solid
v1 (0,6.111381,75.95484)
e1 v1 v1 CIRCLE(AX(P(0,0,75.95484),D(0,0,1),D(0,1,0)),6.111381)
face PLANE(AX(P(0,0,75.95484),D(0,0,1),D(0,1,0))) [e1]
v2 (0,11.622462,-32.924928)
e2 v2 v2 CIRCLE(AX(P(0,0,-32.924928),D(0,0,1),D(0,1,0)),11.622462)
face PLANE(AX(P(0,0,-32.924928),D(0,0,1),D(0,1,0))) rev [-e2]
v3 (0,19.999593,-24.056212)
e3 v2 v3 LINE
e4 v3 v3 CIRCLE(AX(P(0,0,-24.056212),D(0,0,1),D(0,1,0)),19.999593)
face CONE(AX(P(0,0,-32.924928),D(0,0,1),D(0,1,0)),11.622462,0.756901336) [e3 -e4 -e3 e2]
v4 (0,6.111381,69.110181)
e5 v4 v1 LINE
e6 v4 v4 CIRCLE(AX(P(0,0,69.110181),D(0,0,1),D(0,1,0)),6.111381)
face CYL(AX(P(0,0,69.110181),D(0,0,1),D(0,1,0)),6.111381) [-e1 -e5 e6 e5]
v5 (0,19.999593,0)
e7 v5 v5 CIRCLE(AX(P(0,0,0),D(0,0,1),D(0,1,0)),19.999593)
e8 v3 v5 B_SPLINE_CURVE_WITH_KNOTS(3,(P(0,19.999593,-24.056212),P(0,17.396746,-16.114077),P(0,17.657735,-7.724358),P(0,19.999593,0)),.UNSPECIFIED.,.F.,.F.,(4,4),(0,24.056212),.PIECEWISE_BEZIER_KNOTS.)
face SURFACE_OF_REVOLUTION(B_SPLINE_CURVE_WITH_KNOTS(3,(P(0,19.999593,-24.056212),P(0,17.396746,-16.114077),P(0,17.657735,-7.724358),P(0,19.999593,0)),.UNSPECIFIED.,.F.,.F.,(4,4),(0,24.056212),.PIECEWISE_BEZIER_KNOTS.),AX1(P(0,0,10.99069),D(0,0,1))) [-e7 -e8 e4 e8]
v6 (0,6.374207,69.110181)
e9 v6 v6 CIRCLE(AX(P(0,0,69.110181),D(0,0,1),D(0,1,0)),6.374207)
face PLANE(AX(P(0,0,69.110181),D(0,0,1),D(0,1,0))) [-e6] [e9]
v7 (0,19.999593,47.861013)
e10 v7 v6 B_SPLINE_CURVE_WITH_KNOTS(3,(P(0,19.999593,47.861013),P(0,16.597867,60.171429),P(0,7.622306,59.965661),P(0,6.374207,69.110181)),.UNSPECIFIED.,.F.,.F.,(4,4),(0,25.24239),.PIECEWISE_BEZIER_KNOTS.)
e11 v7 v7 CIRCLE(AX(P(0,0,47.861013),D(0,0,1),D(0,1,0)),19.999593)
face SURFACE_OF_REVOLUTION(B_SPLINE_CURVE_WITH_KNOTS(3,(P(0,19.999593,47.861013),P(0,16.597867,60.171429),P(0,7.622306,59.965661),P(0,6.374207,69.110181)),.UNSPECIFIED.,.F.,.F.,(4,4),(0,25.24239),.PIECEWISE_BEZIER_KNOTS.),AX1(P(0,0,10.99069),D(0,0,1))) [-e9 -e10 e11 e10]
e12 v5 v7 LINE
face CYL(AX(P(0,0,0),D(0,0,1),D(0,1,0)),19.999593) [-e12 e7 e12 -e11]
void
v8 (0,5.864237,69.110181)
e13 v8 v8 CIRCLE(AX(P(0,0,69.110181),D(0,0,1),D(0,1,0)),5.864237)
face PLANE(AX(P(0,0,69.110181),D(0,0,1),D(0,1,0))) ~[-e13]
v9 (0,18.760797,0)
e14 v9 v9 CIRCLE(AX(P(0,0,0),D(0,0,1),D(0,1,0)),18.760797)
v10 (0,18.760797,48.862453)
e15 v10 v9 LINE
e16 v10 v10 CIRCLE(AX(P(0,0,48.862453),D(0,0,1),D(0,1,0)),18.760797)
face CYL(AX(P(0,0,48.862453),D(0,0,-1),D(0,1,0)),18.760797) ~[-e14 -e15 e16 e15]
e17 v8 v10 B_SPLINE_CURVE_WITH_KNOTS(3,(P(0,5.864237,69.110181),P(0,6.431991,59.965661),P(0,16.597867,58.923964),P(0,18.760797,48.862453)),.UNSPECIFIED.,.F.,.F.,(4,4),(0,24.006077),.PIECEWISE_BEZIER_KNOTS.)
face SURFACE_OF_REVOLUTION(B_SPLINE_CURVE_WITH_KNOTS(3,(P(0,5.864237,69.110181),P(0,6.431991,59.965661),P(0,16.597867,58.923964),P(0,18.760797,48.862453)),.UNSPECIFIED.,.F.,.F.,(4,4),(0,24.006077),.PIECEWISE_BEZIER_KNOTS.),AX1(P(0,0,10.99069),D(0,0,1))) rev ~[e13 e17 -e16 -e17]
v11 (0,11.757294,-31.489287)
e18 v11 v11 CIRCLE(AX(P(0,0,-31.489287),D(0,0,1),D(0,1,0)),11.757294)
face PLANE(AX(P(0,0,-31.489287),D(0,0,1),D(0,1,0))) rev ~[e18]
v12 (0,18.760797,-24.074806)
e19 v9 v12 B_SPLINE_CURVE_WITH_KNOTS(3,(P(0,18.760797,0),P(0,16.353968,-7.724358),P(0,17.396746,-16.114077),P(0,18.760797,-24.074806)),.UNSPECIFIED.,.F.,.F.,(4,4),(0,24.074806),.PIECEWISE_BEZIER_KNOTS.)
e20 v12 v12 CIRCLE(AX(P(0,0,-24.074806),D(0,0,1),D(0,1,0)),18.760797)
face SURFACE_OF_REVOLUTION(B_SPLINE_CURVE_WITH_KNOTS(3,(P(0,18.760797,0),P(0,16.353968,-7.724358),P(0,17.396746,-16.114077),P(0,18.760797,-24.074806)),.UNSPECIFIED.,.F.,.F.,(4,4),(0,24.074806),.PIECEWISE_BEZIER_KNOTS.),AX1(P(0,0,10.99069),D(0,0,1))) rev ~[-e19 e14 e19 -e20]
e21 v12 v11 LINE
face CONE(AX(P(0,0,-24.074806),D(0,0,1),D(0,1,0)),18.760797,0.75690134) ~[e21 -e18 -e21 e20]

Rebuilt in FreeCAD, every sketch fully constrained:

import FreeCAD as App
import Part
import Sketcher

doc = App.newDocument("Part")
body = doc.addObject("PartDesign::Body", "Body")

sketch1 = body.newObject("Sketcher::SketchObject", "Sketch")
sketch1.AttachmentSupport = (doc.getObject("YZ_Plane"), [""])
sketch1.MapMode = "FlatFace"
sketch1.addGeometry([
    Part.LineSegment(App.Vector(0, -31.489287, 0), App.Vector(0, -32.924928, 0)),
    Part.LineSegment(App.Vector(0, -32.924928, 0), App.Vector(11.622462, -32.924928, 0)),
    Part.LineSegment(App.Vector(11.622462, -32.924928, 0), App.Vector(19.999593, -24.056212, 0)),
    Part.BSplineCurve([App.Vector(19.999593, -24.056212, 0), App.Vector(17.396746, -16.114077, 0), App.Vector(17.657735, -7.724358, 0), App.Vector(19.999593, 0, 0)], [4, 4], [0, 24.056212], False, 3, [1, 1, 1, 1], False),
    Part.LineSegment(App.Vector(19.999593, 0, 0), App.Vector(19.999593, 47.861013, 0)),
    Part.BSplineCurve([App.Vector(19.999593, 47.861013, 0), App.Vector(16.597867, 60.171429, 0), App.Vector(7.622306, 59.965661, 0), App.Vector(6.374207, 69.110181, 0)], [4, 4], [0, 25.24239], False, 3, [1, 1, 1, 1], False),
    Part.LineSegment(App.Vector(6.374207, 69.110181, 0), App.Vector(6.111381, 69.110181, 0)),
    Part.LineSegment(App.Vector(6.111381, 69.110181, 0), App.Vector(6.111381, 75.95484, 0)),
    Part.LineSegment(App.Vector(6.111381, 75.95484, 0), App.Vector(0, 75.95484, 0)),
    Part.LineSegment(App.Vector(0, 75.95484, 0), App.Vector(0, 69.110181, 0)),
    Part.LineSegment(App.Vector(0, 69.110181, 0), App.Vector(5.864237, 69.110181, 0)),
    Part.BSplineCurve([App.Vector(5.864237, 69.110181, 0), App.Vector(6.431991, 59.965661, 0), App.Vector(16.597867, 58.923964, 0), App.Vector(18.760797, 48.862453, 0)], [4, 4], [0, 24.006077], False, 3, [1, 1, 1, 1], False),
    Part.LineSegment(App.Vector(18.760797, 48.862453, 0), App.Vector(18.760797, 0, 0)),
    Part.BSplineCurve([App.Vector(18.760797, 0, 0), App.Vector(16.353968, -7.724358, 0), App.Vector(17.396746, -16.114077, 0), App.Vector(18.760797, -24.074806, 0)], [4, 4], [0, 24.074806], False, 3, [1, 1, 1, 1], False),
    Part.LineSegment(App.Vector(18.760797, -24.074806, 0), App.Vector(11.757294, -31.489287, 0)),
    Part.LineSegment(App.Vector(11.757294, -31.489287, 0), App.Vector(0, -31.489287, 0)),
], False)
sketch1.addConstraint([
    Sketcher.Constraint("Block", 3),
    Sketcher.Constraint("Block", 5),
    Sketcher.Constraint("Block", 11),
    Sketcher.Constraint("Block", 13),
    Sketcher.Constraint("Coincident", 0, 2, 1, 1),
    Sketcher.Constraint("Coincident", 1, 2, 2, 1),
    Sketcher.Constraint("Coincident", 2, 2, 3, 1),
    Sketcher.Constraint("Coincident", 3, 2, 4, 1),
    Sketcher.Constraint("Coincident", 4, 2, 5, 1),
    Sketcher.Constraint("Coincident", 5, 2, 6, 1),
    Sketcher.Constraint("Coincident", 6, 2, 7, 1),
    Sketcher.Constraint("Coincident", 7, 2, 8, 1),
    Sketcher.Constraint("Coincident", 8, 2, 9, 1),
    Sketcher.Constraint("Coincident", 9, 2, 10, 1),
    Sketcher.Constraint("Coincident", 10, 2, 11, 1),
    Sketcher.Constraint("Coincident", 11, 2, 12, 1),
    Sketcher.Constraint("Coincident", 12, 2, 13, 1),
    Sketcher.Constraint("Coincident", 13, 2, 14, 1),
    Sketcher.Constraint("Coincident", 14, 2, 15, 1),
    Sketcher.Constraint("Coincident", 15, 2, 0, 1),
    Sketcher.Constraint("Vertical", 0),
    Sketcher.Constraint("Horizontal", 1),
    Sketcher.Constraint("Horizontal", 6),
    Sketcher.Constraint("Vertical", 7),
    Sketcher.Constraint("Horizontal", 8),
    Sketcher.Constraint("Vertical", 9),
    Sketcher.Constraint("Horizontal", 10),
    Sketcher.Constraint("Horizontal", 15),
    Sketcher.Constraint("PointOnObject", 0, 2, -2),
    Sketcher.Constraint("PointOnObject", 8, 2, -2),
    Sketcher.Constraint("DistanceX", 8, 2, 8, 1, 6.111381),
    Sketcher.Constraint("DistanceY", 0, 2, 0, 1, 1.435641),
    Sketcher.Constraint("DistanceY", 7, 1, 7, 2, 6.844659),
    Sketcher.Constraint("DistanceX", 14, 2, 2, 2, 8.242299),
    Sketcher.Constraint("DistanceY", 14, 2, 4, 2, 79.3503),
    Sketcher.Constraint("Distance", 2, 12.199608),
])
revolution = body.newObject("PartDesign::Revolution", "Revolution")
revolution.Profile = sketch1
revolution.ReferenceAxis = (sketch1, ["V_Axis"])
revolution.Angle = 360

doc.recompute()
